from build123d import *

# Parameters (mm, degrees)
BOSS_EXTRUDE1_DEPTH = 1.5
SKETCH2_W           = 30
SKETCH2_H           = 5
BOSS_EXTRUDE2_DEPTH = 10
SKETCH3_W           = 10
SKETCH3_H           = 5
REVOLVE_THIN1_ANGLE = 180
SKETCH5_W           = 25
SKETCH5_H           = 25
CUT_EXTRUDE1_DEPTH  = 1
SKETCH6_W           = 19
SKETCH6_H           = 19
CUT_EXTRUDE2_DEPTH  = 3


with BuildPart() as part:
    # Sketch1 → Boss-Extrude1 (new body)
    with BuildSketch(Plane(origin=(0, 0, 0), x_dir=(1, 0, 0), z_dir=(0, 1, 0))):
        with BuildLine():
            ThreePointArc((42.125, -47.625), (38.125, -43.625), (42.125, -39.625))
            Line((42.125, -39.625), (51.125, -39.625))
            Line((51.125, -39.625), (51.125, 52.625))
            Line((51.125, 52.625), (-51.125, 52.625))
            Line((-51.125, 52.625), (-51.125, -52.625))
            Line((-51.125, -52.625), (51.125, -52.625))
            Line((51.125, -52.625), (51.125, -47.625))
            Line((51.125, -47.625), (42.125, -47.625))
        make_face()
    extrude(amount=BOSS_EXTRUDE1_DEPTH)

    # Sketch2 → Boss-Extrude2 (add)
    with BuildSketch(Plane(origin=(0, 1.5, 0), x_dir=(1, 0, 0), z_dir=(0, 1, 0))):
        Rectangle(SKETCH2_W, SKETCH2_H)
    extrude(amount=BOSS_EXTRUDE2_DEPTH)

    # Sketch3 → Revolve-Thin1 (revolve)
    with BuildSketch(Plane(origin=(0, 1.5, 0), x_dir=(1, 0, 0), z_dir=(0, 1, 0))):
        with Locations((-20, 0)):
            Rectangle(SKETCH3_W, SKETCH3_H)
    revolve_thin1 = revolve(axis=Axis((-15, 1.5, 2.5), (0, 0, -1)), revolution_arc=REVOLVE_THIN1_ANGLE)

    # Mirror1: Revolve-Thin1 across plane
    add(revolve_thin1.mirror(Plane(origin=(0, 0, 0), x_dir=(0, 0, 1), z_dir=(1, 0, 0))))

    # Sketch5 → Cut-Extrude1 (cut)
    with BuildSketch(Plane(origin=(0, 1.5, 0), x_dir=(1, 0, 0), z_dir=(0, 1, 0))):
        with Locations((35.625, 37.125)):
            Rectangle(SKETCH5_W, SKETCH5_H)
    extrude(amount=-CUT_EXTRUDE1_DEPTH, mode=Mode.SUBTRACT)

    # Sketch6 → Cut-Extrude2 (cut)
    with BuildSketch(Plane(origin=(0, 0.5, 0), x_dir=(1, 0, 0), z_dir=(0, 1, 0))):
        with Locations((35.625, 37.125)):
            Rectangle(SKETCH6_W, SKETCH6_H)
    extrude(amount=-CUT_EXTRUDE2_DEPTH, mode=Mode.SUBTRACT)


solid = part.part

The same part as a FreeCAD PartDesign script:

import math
import FreeCAD as App
import Part
import Sketcher

V = App.Vector


def add_polygon(sketch, points):
    """Adds a closed chain of lines whose ends are joined by coincident constraints."""
    first, n = sketch.GeometryCount, len(points)
    for a, b in zip(points, points[1:] + points[:1]):
        sketch.addGeometry(Part.LineSegment(App.Vector(*a, 0), App.Vector(*b, 0)), False)
    for i in range(n):
        sketch.addConstraint(Sketcher.Constraint("Coincident", first + i, 2, first + (i + 1) % n, 1))

doc = App.newDocument("Part")
params = doc.addObject("Spreadsheet::Sheet", "Params")
for row, (alias, value) in enumerate([
    ("sketch1_radius", "4 mm"),
    ("sketch1_width", "9 mm"),
    ("sketch1_height", "5 mm"),
    ("sketch1_width2", "102.25 mm"),
    ("sketch1_height2", "92.25 mm"),
    ("pad1_length", "1.5 mm"),
    ("sketch2_width", "30 mm"),
    ("sketch2_height", "5 mm"),
    ("pad2_length", "10 mm"),
    ("sketch3_width", "10 mm"),
    ("sketch3_height", "5 mm"),
    ("revolution_angle", "180 deg"),
    ("sketch4_width", "25 mm"),
    ("pocket1_length", "1 mm"),
    ("sketch5_width", "19 mm"),
    ("pocket2_length", "3 mm"),
], start=1):
    params.set(f"A{row}", alias)
    params.set(f"B{row}", "=" + value)
    params.setAlias(f"B{row}", alias)

body = doc.addObject("PartDesign::Body", "Body")

sketch1 = doc.addObject("Sketcher::SketchObject", "Sketch")
body.addObject(sketch1)
sketch1.AttachmentSupport = (doc.XZ_Plane, [""])
sketch1.MapMode = "FlatFace"
sketch1.addGeometry([
    Part.ArcOfCircle(Part.Circle(V(42.125, 43.625, 0), V(0, 0, 1), 4), math.radians(90), math.radians(270)),
    Part.LineSegment(V(42.125, 39.625, 0), V(51.125, 39.625, 0)),
    Part.LineSegment(V(51.125, 39.625, 0), V(51.125, -52.625, 0)),
    Part.LineSegment(V(51.125, -52.625, 0), V(-51.125, -52.625, 0)),
    Part.LineSegment(V(-51.125, -52.625, 0), V(-51.125, 52.625, 0)),
    Part.LineSegment(V(-51.125, 52.625, 0), V(51.125, 52.625, 0)),
    Part.LineSegment(V(51.125, 52.625, 0), V(51.125, 47.625, 0)),
    Part.LineSegment(V(51.125, 47.625, 0), V(42.125, 47.625, 0)),
], False)
sketch1.addConstraint([
    Sketcher.Constraint("Tangent", 0, 2, 1, 1),
    Sketcher.Constraint("Coincident", 1, 2, 2, 1),
    Sketcher.Constraint("Coincident", 2, 2, 3, 1),
    Sketcher.Constraint("Coincident", 3, 2, 4, 1),
    Sketcher.Constraint("Coincident", 4, 2, 5, 1),
    Sketcher.Constraint("Coincident", 5, 2, 6, 1),
    Sketcher.Constraint("Coincident", 6, 2, 7, 1),
    Sketcher.Constraint("Tangent", 7, 2, 0, 1),
    Sketcher.Constraint("Horizontal", 1),
    Sketcher.Constraint("Vertical", 2),
    Sketcher.Constraint("Horizontal", 3),
    Sketcher.Constraint("Vertical", 4),
    Sketcher.Constraint("Horizontal", 5),
    Sketcher.Constraint("Vertical", 6),
    Sketcher.Constraint("Horizontal", 7),
    Sketcher.Constraint("Symmetric", 2, 2, 4, 2, -1, 1),
    Sketcher.Constraint("Vertical", 2, 2, 5, 2),
    Sketcher.Constraint("Radius", 0, 4.0),
    Sketcher.Constraint("DistanceX", 1, 1, 1, 2, 9.0),
    Sketcher.Constraint("DistanceY", 6, 2, 6, 1, 5.0),
    Sketcher.Constraint("DistanceX", 3, 2, 3, 1, 102.25),
    Sketcher.Constraint("DistanceY", 2, 2, 2, 1, 92.25),
])
sketch1.setExpression("Constraints[17]", "Params.sketch1_radius")
sketch1.setExpression("Constraints[18]", "Params.sketch1_width")
sketch1.setExpression("Constraints[19]", "Params.sketch1_height")
sketch1.setExpression("Constraints[20]", "Params.sketch1_width2")
sketch1.setExpression("Constraints[21]", "Params.sketch1_height2")
pad1 = doc.addObject("PartDesign::Pad", "Pad")
body.addObject(pad1)
pad1.Profile = sketch1
pad1.setExpression("Length", "Params.pad1_length")
pad1.Reversed = True

sketch2 = doc.addObject("Sketcher::SketchObject", "Sketch001")
body.addObject(sketch2)
sketch2.AttachmentSupport = (doc.XZ_Plane, [""])
sketch2.MapMode = "FlatFace"
sketch2.AttachmentOffset = App.Placement(V(0, 0, -1.5), App.Rotation())
add_polygon(sketch2, [(-15, -2.5), (-15, 2.5), (15, 2.5), (15, -2.5)])
sketch2.addConstraint([
    Sketcher.Constraint("Vertical", 0),
    Sketcher.Constraint("Horizontal", 1),
    Sketcher.Constraint("Vertical", 2),
    Sketcher.Constraint("Horizontal", 3),
    Sketcher.Constraint("Symmetric", 0, 2, 2, 2, -1, 1),
    Sketcher.Constraint("DistanceX", 1, 1, 1, 2, 30.0),
    Sketcher.Constraint("DistanceY", 0, 1, 0, 2, 5.0),
])
sketch2.setExpression("Constraints[9]", "Params.sketch2_width")
sketch2.setExpression("Constraints[10]", "Params.sketch2_height")
pad2 = doc.addObject("PartDesign::Pad", "Pad001")
body.addObject(pad2)
pad2.Profile = sketch2
pad2.setExpression("Length", "Params.pad2_length")
pad2.Reversed = True

sketch3 = doc.addObject("Sketcher::SketchObject", "Sketch002")
body.addObject(sketch3)
sketch3.AttachmentSupport = (doc.XZ_Plane, [""])
sketch3.MapMode = "FlatFace"
sketch3.AttachmentOffset = App.Placement(V(0, 0, -1.5), App.Rotation())
add_polygon(sketch3, [(-25, -2.5), (-25, 2.5), (-15, 2.5), (-15, -2.5)])
sketch3.addGeometry(Part.LineSegment(V(-15, 2.5, 0), V(-15, -2.5, 0)), True)
sketch3.addConstraint([
    Sketcher.Constraint("Vertical", 0),
    Sketcher.Constraint("Horizontal", 1),
    Sketcher.Constraint("Vertical", 2),
    Sketcher.Constraint("Horizontal", 3),
    Sketcher.Constraint("Vertical", 4),
    Sketcher.Constraint("Coincident", 4, 1, 1, 2),
    Sketcher.Constraint("Horizontal", 3, 2, 4, 2),
    Sketcher.Constraint("DistanceX", 1, 1, 1, 2, 10.0),
    Sketcher.Constraint("DistanceY", 0, 1, 0, 2, 5.0),
    Sketcher.Constraint("DistanceX", 0, 2, -1, 1, 25.0),
    Sketcher.Constraint("DistanceY", -1, 1, 0, 2, 2.5),
])
sketch3.setExpression("Constraints[11]", "Params.sketch3_width")
sketch3.setExpression("Constraints[12]", "Params.sketch3_height")
revolution = doc.addObject("PartDesign::Revolution", "Revolution")
body.addObject(revolution)
revolution.Profile = sketch3
revolution.ReferenceAxis = (sketch3, ["Axis0"])
revolution.setExpression("Angle", "Params.revolution_angle")
doc.recompute()

mirrored = doc.addObject("PartDesign::Mirrored", "Mirrored")
body.addObject(mirrored)
mirrored.Originals = [revolution]
mirrored.MirrorPlane = (doc.YZ_Plane, [""])
body.Tip = mirrored

sketch4 = doc.addObject("Sketcher::SketchObject", "Sketch003")
body.addObject(sketch4)
sketch4.AttachmentSupport = (doc.XZ_Plane, [""])
sketch4.MapMode = "FlatFace"
sketch4.AttachmentOffset = App.Placement(V(0, 0, -1.5), App.Rotation())
add_polygon(sketch4, [(23.125, -49.625), (23.125, -24.625), (48.125, -24.625), (48.125, -49.625)])
sketch4.addConstraint([
    Sketcher.Constraint("Vertical", 0),
    Sketcher.Constraint("Horizontal", 1),
    Sketcher.Constraint("Vertical", 2),
    Sketcher.Constraint("Horizontal", 3),
    Sketcher.Constraint("Equal", 3, 0),
    Sketcher.Constraint("DistanceX", 1, 1, 1, 2, 25.0),
    Sketcher.Constraint("DistanceX", -1, 1, 0, 2, 23.125),
    Sketcher.Constraint("DistanceY", 0, 2, -1, 1, 24.625),
])
sketch4.setExpression("Constraints[9]", "Params.sketch4_width")
pocket1 = doc.addObject("PartDesign::Pocket", "Pocket")
body.addObject(pocket1)
pocket1.Profile = sketch4
pocket1.setExpression("Length", "Params.pocket1_length")
pocket1.Reversed = True

sketch5 = doc.addObject("Sketcher::SketchObject", "Sketch004")
body.addObject(sketch5)
sketch5.AttachmentSupport = (doc.XZ_Plane, [""])
sketch5.MapMode = "FlatFace"
sketch5.AttachmentOffset = App.Placement(V(0, 0, -0.5), App.Rotation())
add_polygon(sketch5, [(26.125, -46.625), (26.125, -27.625), (45.125, -27.625), (45.125, -46.625)])
sketch5.addConstraint([
    Sketcher.Constraint("Vertical", 0),
    Sketcher.Constraint("Horizontal", 1),
    Sketcher.Constraint("Vertical", 2),
    Sketcher.Constraint("Horizontal", 3),
    Sketcher.Constraint("Equal", 3, 0),
    Sketcher.Constraint("DistanceX", 1, 1, 1, 2, 19.0),
    Sketcher.Constraint("DistanceX", -1, 1, 0, 2, 26.125),
    Sketcher.Constraint("DistanceY", 0, 2, -1, 1, 27.625),
])
sketch5.setExpression("Constraints[9]", "Params.sketch5_width")
pocket2 = doc.addObject("PartDesign::Pocket", "Pocket001")
body.addObject(pocket2)
pocket2.Profile = sketch5
pocket2.setExpression("Length", "Params.pocket2_length")
pocket2.Reversed = True

doc.recompute()
